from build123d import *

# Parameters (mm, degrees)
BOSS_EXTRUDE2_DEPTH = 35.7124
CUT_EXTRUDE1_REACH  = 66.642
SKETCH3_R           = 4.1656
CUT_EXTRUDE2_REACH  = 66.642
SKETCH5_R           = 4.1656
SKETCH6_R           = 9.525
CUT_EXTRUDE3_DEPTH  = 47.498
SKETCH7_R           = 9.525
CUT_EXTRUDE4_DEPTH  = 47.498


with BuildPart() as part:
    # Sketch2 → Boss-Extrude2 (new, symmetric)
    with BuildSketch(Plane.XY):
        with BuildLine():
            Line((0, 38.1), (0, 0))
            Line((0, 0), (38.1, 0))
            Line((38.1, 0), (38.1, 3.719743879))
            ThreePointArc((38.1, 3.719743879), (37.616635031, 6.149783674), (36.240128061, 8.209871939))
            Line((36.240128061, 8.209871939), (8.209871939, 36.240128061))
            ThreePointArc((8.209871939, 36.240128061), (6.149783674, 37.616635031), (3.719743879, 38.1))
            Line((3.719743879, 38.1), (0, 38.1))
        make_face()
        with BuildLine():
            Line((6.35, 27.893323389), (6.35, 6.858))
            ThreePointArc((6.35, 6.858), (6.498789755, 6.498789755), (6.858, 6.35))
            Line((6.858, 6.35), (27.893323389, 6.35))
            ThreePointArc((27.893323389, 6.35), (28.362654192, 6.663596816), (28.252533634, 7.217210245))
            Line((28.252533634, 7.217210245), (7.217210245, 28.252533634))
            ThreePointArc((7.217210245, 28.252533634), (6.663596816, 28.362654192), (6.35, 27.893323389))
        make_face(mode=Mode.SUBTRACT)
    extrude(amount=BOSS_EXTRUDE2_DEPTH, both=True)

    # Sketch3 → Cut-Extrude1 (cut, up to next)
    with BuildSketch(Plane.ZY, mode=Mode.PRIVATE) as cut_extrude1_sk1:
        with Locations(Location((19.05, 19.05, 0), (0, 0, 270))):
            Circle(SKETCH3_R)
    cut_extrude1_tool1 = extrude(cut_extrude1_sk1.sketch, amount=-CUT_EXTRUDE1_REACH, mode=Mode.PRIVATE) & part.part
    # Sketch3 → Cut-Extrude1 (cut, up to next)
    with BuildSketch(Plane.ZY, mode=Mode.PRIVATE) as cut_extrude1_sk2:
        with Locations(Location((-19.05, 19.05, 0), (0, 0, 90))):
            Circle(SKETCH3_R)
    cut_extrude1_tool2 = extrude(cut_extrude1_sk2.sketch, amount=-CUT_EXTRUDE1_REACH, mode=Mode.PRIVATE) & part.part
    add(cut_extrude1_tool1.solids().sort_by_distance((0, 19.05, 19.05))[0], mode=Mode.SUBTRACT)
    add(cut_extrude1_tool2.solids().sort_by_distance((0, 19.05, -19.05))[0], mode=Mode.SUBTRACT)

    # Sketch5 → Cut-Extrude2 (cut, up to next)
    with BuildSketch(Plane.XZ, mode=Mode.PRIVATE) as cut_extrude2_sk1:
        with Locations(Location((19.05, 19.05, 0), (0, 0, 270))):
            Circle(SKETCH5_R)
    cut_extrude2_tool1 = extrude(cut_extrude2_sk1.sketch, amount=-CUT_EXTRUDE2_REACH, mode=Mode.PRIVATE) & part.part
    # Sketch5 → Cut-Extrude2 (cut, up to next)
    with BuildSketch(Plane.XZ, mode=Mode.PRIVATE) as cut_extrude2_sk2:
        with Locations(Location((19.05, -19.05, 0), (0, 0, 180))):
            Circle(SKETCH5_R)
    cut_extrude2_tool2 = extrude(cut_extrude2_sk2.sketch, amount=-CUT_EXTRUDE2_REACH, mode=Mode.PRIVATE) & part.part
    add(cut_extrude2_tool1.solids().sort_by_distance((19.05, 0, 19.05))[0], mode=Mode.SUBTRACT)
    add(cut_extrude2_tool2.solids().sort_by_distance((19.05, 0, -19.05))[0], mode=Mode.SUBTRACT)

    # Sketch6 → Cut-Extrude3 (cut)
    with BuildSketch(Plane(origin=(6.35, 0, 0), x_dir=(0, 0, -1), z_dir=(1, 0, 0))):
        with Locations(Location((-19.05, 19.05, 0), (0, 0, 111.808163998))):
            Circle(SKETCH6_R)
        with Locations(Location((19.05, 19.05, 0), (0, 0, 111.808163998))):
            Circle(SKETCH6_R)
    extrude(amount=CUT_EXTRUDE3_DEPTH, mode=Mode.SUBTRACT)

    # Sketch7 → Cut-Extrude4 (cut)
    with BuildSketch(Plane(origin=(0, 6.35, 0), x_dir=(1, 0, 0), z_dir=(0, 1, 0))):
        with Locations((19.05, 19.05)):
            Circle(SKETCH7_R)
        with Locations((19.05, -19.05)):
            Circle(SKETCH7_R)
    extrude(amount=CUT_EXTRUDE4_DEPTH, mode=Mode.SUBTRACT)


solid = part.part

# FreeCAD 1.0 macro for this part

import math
import FreeCAD as App
import Part
import Sketcher
from FreeCAD import Vector
Q = App.Units.Quantity

doc = App.newDocument("Part")
params = doc.addObject("Spreadsheet::Sheet", "Params")
for row, (alias, value) in enumerate([
    ("sketch1_radius", "0.25 in"),
    ("sketch1_radius2", "0.02 in"),
    ("sketch1_width", "1.5 in"),
    ("pad1_length", "2.812 in"),
    ("sketch2_diameter", "0.328 in"),
    ("sketch3_diameter", "0.328 in"),
    ("sketch4_diameter", "0.328 in"),
    ("sketch5_diameter", "0.328 in"),
    ("sketch6_diameter", "0.75 in"),
    ("pocket5_length", "1.87 in"),
    ("sketch7_diameter", "0.75 in"),
    ("pocket6_length", "1.87 in"),
], start=1):
    params.set(f"A{row}", alias)
    params.set(f"B{row}", "=" + value)
    params.setAlias(f"B{row}", alias)

body = doc.addObject("PartDesign::Body", "Body")

# Sketch on XY plane
sketch1 = body.newObject("Sketcher::SketchObject", "Sketch")
sketch1.AttachmentSupport = (doc.getObject("XY_Plane"), [""])
sketch1.MapMode = "FlatFace"
sketch1.addGeometry(Part.LineSegment(Vector(0, 38.1, 0), Vector(0, 0, 0)), False)
sketch1.addGeometry(Part.LineSegment(Vector(0, 0, 0), Vector(38.1, 0, 0)), False)
sketch1.addGeometry(Part.LineSegment(Vector(38.1, 0, 0), Vector(38.1, 3.719744, 0)), False)
sketch1.addGeometry(Part.ArcOfCircle(Part.Circle(Vector(31.75, 3.719744, 0), Vector(0, 0, 1), 6.35), math.radians(0), math.radians(45)), False)
sketch1.addGeometry(Part.LineSegment(Vector(36.240128, 8.209872, 0), Vector(8.209872, 36.240128, 0)), False)
sketch1.addGeometry(Part.ArcOfCircle(Part.Circle(Vector(3.719744, 31.75, 0), Vector(0, 0, 1), 6.35), math.radians(45), math.radians(90)), False)
sketch1.addGeometry(Part.LineSegment(Vector(3.719744, 38.1, 0), Vector(0, 38.1, 0)), False)
sketch1.addGeometry(Part.LineSegment(Vector(6.35, 6.858, 0), Vector(6.35, 27.893323, 0)), False)
sketch1.addGeometry(Part.ArcOfCircle(Part.Circle(Vector(6.858, 27.893323, 0), Vector(0, 0, 1), 0.508), math.radians(45), math.radians(180)), False)
sketch1.addGeometry(Part.LineSegment(Vector(7.21721, 28.252534, 0), Vector(28.252534, 7.21721, 0)), False)
sketch1.addGeometry(Part.ArcOfCircle(Part.Circle(Vector(27.893323, 6.858, 0), Vector(0, 0, 1), 0.508), math.radians(-90), math.radians(45)), False)
sketch1.addGeometry(Part.LineSegment(Vector(27.893323, 6.35, 0), Vector(6.858, 6.35, 0)), False)
sketch1.addGeometry(Part.ArcOfCircle(Part.Circle(Vector(6.858, 6.858, 0), Vector(0, 0, 1), 0.508), math.radians(180), math.radians(270)), False)
sketch1.addConstraint(Sketcher.Constraint("Coincident", 0, 2, 1, 1))
sketch1.addConstraint(Sketcher.Constraint("Coincident", 1, 2, 2, 1))
sketch1.addConstraint(Sketcher.Constraint("Tangent", 2, 2, 3, 1))
sketch1.addConstraint(Sketcher.Constraint("Tangent", 3, 2, 4, 1))
sketch1.addConstraint(Sketcher.Constraint("Tangent", 4, 2, 5, 1))
sketch1.addConstraint(Sketcher.Constraint("Tangent", 5, 2, 6, 1))
sketch1.addConstraint(Sketcher.Constraint("Coincident", 6, 2, 0, 1))
sketch1.addConstraint(Sketcher.Constraint("Tangent", 7, 2, 8, 2))
sketch1.addConstraint(Sketcher.Constraint("Tangent", 8, 1, 9, 1))
sketch1.addConstraint(Sketcher.Constraint("Tangent", 9, 2, 10, 2))
sketch1.addConstraint(Sketcher.Constraint("Tangent", 10, 1, 11, 1))
sketch1.addConstraint(Sketcher.Constraint("Tangent", 11, 2, 12, 2))
sketch1.addConstraint(Sketcher.Constraint("Tangent", 12, 1, 7, 1))
sketch1.addConstraint(Sketcher.Constraint("Vertical", 0))
sketch1.addConstraint(Sketcher.Constraint("Horizontal", 1))
sketch1.addConstraint(Sketcher.Constraint("Vertical", 2))
sketch1.addConstraint(Sketcher.Constraint("Horizontal", 6))
sketch1.addConstraint(Sketcher.Constraint("Vertical", 7))
sketch1.addConstraint(Sketcher.Constraint("Horizontal", 11))
sketch1.addConstraint(Sketcher.Constraint("Coincident", 0, 2, -1, 1))
sketch1.addConstraint(Sketcher.Constraint("Equal", 3, 5))
sketch1.addConstraint(Sketcher.Constraint("Equal", 8, 10))
sketch1.addConstraint(Sketcher.Constraint("Equal", 10, 12))
sketch1.addConstraint(Sketcher.Constraint("Parallel", 4, 9))
sketch1.addConstraint(Sketcher.Constraint("Equal", 1, 0))
sketch1.addConstraint(Sketcher.Constraint("Equal", 6, 2))
sketch1.addConstraint(Sketcher.Constraint("Radius", 3, Q("0.25 in")))
sketch1.addConstraint(Sketcher.Constraint("Radius", 8, Q("0.02 in")))
sketch1.addConstraint(Sketcher.Constraint("DistanceX", 1, 1, 1, 2, Q("1.5 in")))
sketch1.addConstraint(Sketcher.Constraint("DistanceX", -1, 1, 8, 3, Q("0.27 in")))
sketch1.addConstraint(Sketcher.Constraint("DistanceY", -1, 1, 10, 3, Q("0.27 in")))
sketch1.addConstraint(Sketcher.Constraint("Distance", 4, 39.640768))
sketch1.addConstraint(Sketcher.Constraint("Distance", 9, 29.74844))
sketch1.setExpression("Constraints[26]", "Params.sketch1_radius")
sketch1.setExpression("Constraints[27]", "Params.sketch1_radius2")
sketch1.setExpression("Constraints[28]", "Params.sketch1_width")
pad1 = body.newObject("PartDesign::Pad", "Pad")
pad1.Profile = sketch1
pad1.setExpression("Length", "Params.pad1_length")
pad1.Midplane = True

# Sketch on YZ plane
sketch2 = body.newObject("Sketcher::SketchObject", "Sketch001")
sketch2.AttachmentSupport = (doc.getObject("YZ_Plane"), [""])
sketch2.MapMode = "FlatFace"
sketch2.addGeometry(Part.Circle(Vector(19.05, 19.05, 0), Vector(0, 0, 1), 4.1656), False)
sketch2.addConstraint(Sketcher.Constraint("Diameter", 0, Q("0.328 in")))
sketch2.addConstraint(Sketcher.Constraint("DistanceX", -1, 1, 0, 3, Q("0.75 in")))
sketch2.addConstraint(Sketcher.Constraint("DistanceY", -1, 1, 0, 3, Q("0.75 in")))
sketch2.setExpression("Constraints[0]", "Params.sketch2_diameter")
pocket1 = body.newObject("PartDesign::Pocket", "Pocket")
pocket1.Profile = sketch2
pocket1.Type = "UpToFirst"
pocket1.Reversed = True

# Sketch on YZ plane
sketch3 = body.newObject("Sketcher::SketchObject", "Sketch002")
sketch3.AttachmentSupport = (doc.getObject("YZ_Plane"), [""])
sketch3.MapMode = "FlatFace"
sketch3.addGeometry(Part.Circle(Vector(19.05, -19.05, 0), Vector(0, 0, 1), 4.1656), False)
sketch3.addConstraint(Sketcher.Constraint("Diameter", 0, Q("0.328 in")))
sketch3.addConstraint(Sketcher.Constraint("DistanceX", -1, 1, 0, 3, Q("0.75 in")))
sketch3.addConstraint(Sketcher.Constraint("DistanceY", 0, 3, -1, 1, Q("0.75 in")))
sketch3.setExpression("Constraints[0]", "Params.sketch3_diameter")
pocket2 = body.newObject("PartDesign::Pocket", "Pocket001")
pocket2.Profile = sketch3
pocket2.Type = "UpToFirst"
pocket2.Reversed = True

# Sketch on XZ plane
sketch4 = body.newObject("Sketcher::SketchObject", "Sketch003")
sketch4.AttachmentSupport = (doc.getObject("XZ_Plane"), [""])
sketch4.MapMode = "FlatFace"
sketch4.addGeometry(Part.Circle(Vector(19.05, 19.05, 0), Vector(0, 0, 1), 4.1656), False)
sketch4.addConstraint(Sketcher.Constraint("Diameter", 0, Q("0.328 in")))
sketch4.addConstraint(Sketcher.Constraint("DistanceX", -1, 1, 0, 3, Q("0.75 in")))
sketch4.addConstraint(Sketcher.Constraint("DistanceY", -1, 1, 0, 3, Q("0.75 in")))
sketch4.setExpression("Constraints[0]", "Params.sketch4_diameter")
pocket3 = body.newObject("PartDesign::Pocket", "Pocket002")
pocket3.Profile = sketch4
pocket3.Type = "UpToFirst"

# Sketch on XZ plane
sketch5 = body.newObject("Sketcher::SketchObject", "Sketch004")
sketch5.AttachmentSupport = (doc.getObject("XZ_Plane"), [""])
sketch5.MapMode = "FlatFace"
sketch5.addGeometry(Part.Circle(Vector(19.05, -19.05, 0), Vector(0, 0, 1), 4.1656), False)
sketch5.addConstraint(Sketcher.Constraint("Diameter", 0, Q("0.328 in")))
sketch5.addConstraint(Sketcher.Constraint("DistanceX", -1, 1, 0, 3, Q("0.75 in")))
sketch5.addConstraint(Sketcher.Constraint("DistanceY", 0, 3, -1, 1, Q("0.75 in")))
sketch5.setExpression("Constraints[0]", "Params.sketch5_diameter")
pocket4 = body.newObject("PartDesign::Pocket", "Pocket003")
pocket4.Profile = sketch5
pocket4.Type = "UpToFirst"

# Sketch on YZ plane
sketch6 = body.newObject("Sketcher::SketchObject", "Sketch005")
sketch6.AttachmentSupport = (doc.getObject("YZ_Plane"), [""])
sketch6.MapMode = "FlatFace"
sketch6.AttachmentOffset = App.Placement(Vector(0, 0, 0.25 * 25.4), App.Rotation())
sketch6.addGeometry(Part.Circle(Vector(19.05, 19.05, 0), Vector(0, 0, 1), 9.525), False)
sketch6.addGeometry(Part.Circle(Vector(19.05, -19.05, 0), Vector(0, 0, 1), 9.525), False)
sketch6.addConstraint(Sketcher.Constraint("Equal", 0, 1))
sketch6.addConstraint(Sketcher.Constraint("Symmetric", 0, 3, 1, 3, -1))
sketch6.addConstraint(Sketcher.Constraint("Diameter", 0, Q("0.75 in")))
sketch6.addConstraint(Sketcher.Constraint("DistanceY", 1, 3, 0, 3, Q("1.5 in")))
sketch6.addConstraint(Sketcher.Constraint("DistanceX", -1, 1, 0, 3, Q("0.75 in")))
sketch6.setExpression("Constraints[2]", "Params.sketch6_diameter")
pocket5 = body.newObject("PartDesign::Pocket", "Pocket004")
pocket5.Profile = sketch6
pocket5.setExpression("Length", "Params.pocket5_length")
pocket5.Reversed = True

# Sketch on XZ plane
sketch7 = body.newObject("Sketcher::SketchObject", "Sketch006")
sketch7.AttachmentSupport = (doc.getObject("XZ_Plane"), [""])
sketch7.MapMode = "FlatFace"
sketch7.AttachmentOffset = App.Placement(Vector(0, 0, -0.25 * 25.4), App.Rotation())
sketch7.addGeometry(Part.Circle(Vector(19.05, -19.05, 0), Vector(0, 0, 1), 9.525), False)
sketch7.addGeometry(Part.Circle(Vector(19.05, 19.05, 0), Vector(0, 0, 1), 9.525), False)
sketch7.addConstraint(Sketcher.Constraint("Equal", 0, 1))
sketch7.addConstraint(Sketcher.Constraint("Symmetric", 0, 3, 1, 3, -1))
sketch7.addConstraint(Sketcher.Constraint("Diameter", 0, Q("0.75 in")))
sketch7.addConstraint(Sketcher.Constraint("DistanceY", 0, 3, 1, 3, Q("1.5 in")))
sketch7.addConstraint(Sketcher.Constraint("DistanceX", -1, 1, 0, 3, Q("0.75 in")))
sketch7.setExpression("Constraints[2]", "Params.sketch7_diameter")
pocket6 = body.newObject("PartDesign::Pocket", "Pocket005")
pocket6.Profile = sketch7
pocket6.setExpression("Length", "Params.pocket6_length")

doc.recompute()
